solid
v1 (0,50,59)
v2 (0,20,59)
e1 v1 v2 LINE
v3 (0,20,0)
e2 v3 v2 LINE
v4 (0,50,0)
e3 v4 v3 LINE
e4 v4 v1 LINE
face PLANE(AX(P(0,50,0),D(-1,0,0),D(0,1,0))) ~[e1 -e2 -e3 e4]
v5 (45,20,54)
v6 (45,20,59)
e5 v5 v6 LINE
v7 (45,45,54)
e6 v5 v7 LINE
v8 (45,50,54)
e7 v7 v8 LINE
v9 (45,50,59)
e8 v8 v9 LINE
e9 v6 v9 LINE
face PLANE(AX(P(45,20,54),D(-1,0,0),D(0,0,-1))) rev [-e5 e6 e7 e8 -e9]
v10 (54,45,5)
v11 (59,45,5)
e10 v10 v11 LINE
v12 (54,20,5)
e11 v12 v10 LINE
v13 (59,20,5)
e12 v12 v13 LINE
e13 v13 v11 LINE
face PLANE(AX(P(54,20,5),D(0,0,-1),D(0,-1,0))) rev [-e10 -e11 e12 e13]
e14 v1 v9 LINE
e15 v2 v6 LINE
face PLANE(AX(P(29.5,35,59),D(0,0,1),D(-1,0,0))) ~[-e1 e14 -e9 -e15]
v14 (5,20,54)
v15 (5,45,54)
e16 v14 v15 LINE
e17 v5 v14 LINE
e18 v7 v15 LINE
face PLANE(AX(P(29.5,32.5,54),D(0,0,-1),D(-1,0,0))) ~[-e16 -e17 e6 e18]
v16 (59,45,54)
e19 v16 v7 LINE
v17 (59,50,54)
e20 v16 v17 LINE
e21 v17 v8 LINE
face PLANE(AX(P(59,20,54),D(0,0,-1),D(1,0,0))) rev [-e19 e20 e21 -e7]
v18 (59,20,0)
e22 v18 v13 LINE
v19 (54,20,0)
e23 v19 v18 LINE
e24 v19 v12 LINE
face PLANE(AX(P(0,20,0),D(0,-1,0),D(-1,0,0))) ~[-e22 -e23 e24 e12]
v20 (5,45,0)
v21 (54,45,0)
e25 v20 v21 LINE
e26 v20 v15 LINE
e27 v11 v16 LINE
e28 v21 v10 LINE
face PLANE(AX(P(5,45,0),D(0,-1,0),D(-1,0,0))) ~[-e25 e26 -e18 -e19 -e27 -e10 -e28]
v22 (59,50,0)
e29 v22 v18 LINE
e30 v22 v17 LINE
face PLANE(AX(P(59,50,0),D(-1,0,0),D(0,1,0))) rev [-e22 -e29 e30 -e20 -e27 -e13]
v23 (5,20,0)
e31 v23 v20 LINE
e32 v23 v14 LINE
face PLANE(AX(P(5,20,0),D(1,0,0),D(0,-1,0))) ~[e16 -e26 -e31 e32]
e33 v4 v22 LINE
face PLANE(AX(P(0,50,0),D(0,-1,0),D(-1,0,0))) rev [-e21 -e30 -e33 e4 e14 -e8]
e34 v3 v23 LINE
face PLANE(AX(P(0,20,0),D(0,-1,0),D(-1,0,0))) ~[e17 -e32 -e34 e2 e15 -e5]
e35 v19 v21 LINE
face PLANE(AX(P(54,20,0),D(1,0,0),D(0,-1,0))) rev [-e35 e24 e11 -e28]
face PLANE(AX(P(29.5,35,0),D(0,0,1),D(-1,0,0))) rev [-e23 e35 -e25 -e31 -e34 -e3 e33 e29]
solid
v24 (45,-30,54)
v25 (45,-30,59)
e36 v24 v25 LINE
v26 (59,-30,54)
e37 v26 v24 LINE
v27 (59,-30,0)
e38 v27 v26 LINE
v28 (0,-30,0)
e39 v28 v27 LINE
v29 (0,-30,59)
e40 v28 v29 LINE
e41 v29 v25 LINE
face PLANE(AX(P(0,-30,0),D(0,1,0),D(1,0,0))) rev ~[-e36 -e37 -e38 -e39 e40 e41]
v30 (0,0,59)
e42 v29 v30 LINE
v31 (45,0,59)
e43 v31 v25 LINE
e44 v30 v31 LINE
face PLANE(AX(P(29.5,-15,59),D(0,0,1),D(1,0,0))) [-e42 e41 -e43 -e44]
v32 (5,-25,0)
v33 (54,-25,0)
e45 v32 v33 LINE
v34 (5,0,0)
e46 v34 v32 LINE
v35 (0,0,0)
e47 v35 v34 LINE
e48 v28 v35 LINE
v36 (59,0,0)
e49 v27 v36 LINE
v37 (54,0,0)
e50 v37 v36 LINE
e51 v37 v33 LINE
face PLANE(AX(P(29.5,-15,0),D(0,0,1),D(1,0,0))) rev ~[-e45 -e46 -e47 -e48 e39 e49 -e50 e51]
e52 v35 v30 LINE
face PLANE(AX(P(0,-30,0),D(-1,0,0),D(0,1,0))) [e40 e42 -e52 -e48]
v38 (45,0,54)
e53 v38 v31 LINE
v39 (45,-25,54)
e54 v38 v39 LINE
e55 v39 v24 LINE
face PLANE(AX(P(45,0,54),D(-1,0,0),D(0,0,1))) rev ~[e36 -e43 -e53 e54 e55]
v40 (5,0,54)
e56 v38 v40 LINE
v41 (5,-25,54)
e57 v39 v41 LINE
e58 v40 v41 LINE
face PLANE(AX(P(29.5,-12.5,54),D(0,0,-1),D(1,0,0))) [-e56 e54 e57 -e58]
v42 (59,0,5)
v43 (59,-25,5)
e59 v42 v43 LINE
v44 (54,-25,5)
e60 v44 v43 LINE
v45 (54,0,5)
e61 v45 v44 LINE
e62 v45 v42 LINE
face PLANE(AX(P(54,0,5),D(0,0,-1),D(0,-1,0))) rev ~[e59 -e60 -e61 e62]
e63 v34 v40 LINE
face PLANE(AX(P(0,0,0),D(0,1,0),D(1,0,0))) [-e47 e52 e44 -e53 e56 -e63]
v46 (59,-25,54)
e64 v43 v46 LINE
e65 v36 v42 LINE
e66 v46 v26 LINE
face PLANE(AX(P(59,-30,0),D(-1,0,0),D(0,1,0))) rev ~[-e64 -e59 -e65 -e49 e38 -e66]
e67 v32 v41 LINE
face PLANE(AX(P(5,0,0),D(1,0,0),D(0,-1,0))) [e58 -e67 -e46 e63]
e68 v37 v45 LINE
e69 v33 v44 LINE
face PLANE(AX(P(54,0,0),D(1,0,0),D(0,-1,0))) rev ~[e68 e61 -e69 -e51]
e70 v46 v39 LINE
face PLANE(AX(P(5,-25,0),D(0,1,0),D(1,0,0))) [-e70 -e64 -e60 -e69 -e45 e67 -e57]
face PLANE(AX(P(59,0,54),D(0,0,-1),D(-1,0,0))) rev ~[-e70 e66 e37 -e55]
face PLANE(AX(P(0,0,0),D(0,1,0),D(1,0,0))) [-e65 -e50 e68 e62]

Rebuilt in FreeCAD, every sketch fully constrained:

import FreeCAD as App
import Part
import Sketcher
from FreeCAD import Vector
Q = App.Units.Quantity


def add_polygon(sketch, points):
    """Adds a closed chain of lines whose ends are joined by coincident constraints."""
    first, n = sketch.GeometryCount, len(points)
    for a, b in zip(points, points[1:] + points[:1]):
        sketch.addGeometry(Part.LineSegment(App.Vector(*a, 0), App.Vector(*b, 0)), False)
    for i in range(n):
        sketch.addConstraint(Sketcher.Constraint("Coincident", first + i, 2, first + (i + 1) % n, 1))

doc = App.newDocument("Part")
body = doc.addObject("PartDesign::Body", "Body")

sketch1 = doc.addObject("Sketcher::SketchObject", "Sketch")
body.addObject(sketch1)
sketch1.AttachmentSupport = (doc.XY_Plane, [""])
sketch1.MapMode = "FlatFace"
add_polygon(sketch1, [(0, 0), (0, -30), (59, -30), (59, 0)])
sketch1.addConstraint(Sketcher.Constraint("Vertical", 0))
sketch1.addConstraint(Sketcher.Constraint("Horizontal", 1))
sketch1.addConstraint(Sketcher.Constraint("Vertical", 2))
sketch1.addConstraint(Sketcher.Constraint("Horizontal", 3))
sketch1.addConstraint(Sketcher.Constraint("Coincident", 3, 2, -1, 1))
sketch1.addConstraint(Sketcher.Constraint("DistanceX", 1, 1, 1, 2, Q("59 mm")))
sketch1.addConstraint(Sketcher.Constraint("DistanceY", 0, 2, 0, 1, Q("30 mm")))
pad1 = doc.addObject("PartDesign::Pad", "Pad")
body.addObject(pad1)
pad1.Profile = sketch1
pad1.Length = 59

sketch2 = doc.addObject("Sketcher::SketchObject", "Sketch001")
body.addObject(sketch2)
sketch2.AttachmentSupport = (doc.XY_Plane, [""])
sketch2.MapMode = "FlatFace"
add_polygon(sketch2, [(5, -25), (5, 0), (54, 0), (54, -25)])
sketch2.addConstraint(Sketcher.Constraint("Vertical", 0))
sketch2.addConstraint(Sketcher.Constraint("Horizontal", 1))
sketch2.addConstraint(Sketcher.Constraint("Vertical", 2))
sketch2.addConstraint(Sketcher.Constraint("Horizontal", 3))
sketch2.addConstraint(Sketcher.Constraint("PointOnObject", 0, 2, -1))
sketch2.addConstraint(Sketcher.Constraint("DistanceX", 1, 1, 1, 2, Q("49 mm")))
sketch2.addConstraint(Sketcher.Constraint("DistanceY", 0, 1, 0, 2, Q("25 mm")))
sketch2.addConstraint(Sketcher.Constraint("DistanceX", -1, 1, 0, 2, Q("5 mm")))
pocket1 = doc.addObject("PartDesign::Pocket", "Pocket")
body.addObject(pocket1)
pocket1.Profile = sketch2
pocket1.Length = 54
pocket1.Reversed = True

sketch3 = doc.addObject("Sketcher::SketchObject", "Sketch002")
body.addObject(sketch3)
sketch3.AttachmentSupport = (doc.YZ_Plane, [""])
sketch3.MapMode = "FlatFace"
sketch3.AttachmentOffset = App.Placement(Vector(0, 0, 54), App.Rotation())
add_polygon(sketch3, [(0, 54), (0, 5), (-25, 5), (-25, 54)])
sketch3.addConstraint(Sketcher.Constraint("Vertical", 0))
sketch3.addConstraint(Sketcher.Constraint("Horizontal", 1))
sketch3.addConstraint(Sketcher.Constraint("Vertical", 2))
sketch3.addConstraint(Sketcher.Constraint("Horizontal", 3))
sketch3.addConstraint(Sketcher.Constraint("PointOnObject", 0, 2, -2))
sketch3.addConstraint(Sketcher.Constraint("DistanceX", 1, 2, 1, 1, Q("25 mm")))
sketch3.addConstraint(Sketcher.Constraint("DistanceY", 0, 2, 0, 1, Q("49 mm")))
sketch3.addConstraint(Sketcher.Constraint("DistanceY", -1, 1, 0, 2, Q("5 mm")))
pocket2 = doc.addObject("PartDesign::Pocket", "Pocket001")
body.addObject(pocket2)
pocket2.Profile = sketch3
pocket2.Length = 5
pocket2.Reversed = True

sketch4 = doc.addObject("Sketcher::SketchObject", "Sketch003")
body.addObject(sketch4)
sketch4.AttachmentSupport = (doc.XZ_Plane, [""])
sketch4.MapMode = "FlatFace"
add_polygon(sketch4, [(59, 59), (59, 54), (45, 54), (45, 59)])
sketch4.addConstraint(Sketcher.Constraint("Vertical", 0))
sketch4.addConstraint(Sketcher.Constraint("Horizontal", 1))
sketch4.addConstraint(Sketcher.Constraint("Vertical", 2))
sketch4.addConstraint(Sketcher.Constraint("Horizontal", 3))
sketch4.addConstraint(Sketcher.Constraint("DistanceX", 1, 2, 1, 1, Q("14 mm")))
sketch4.addConstraint(Sketcher.Constraint("DistanceY", 0, 2, 0, 1, Q("5 mm")))
sketch4.addConstraint(Sketcher.Constraint("DistanceX", -1, 1, 0, 2, Q("59 mm")))
sketch4.addConstraint(Sketcher.Constraint("DistanceY", -1, 1, 0, 2, Q("54 mm")))
pocket3 = doc.addObject("PartDesign::Pocket", "Pocket002")
body.addObject(pocket3)
pocket3.Profile = sketch4
pocket3.Length = 30
pocket3.Reversed = True
body2 = doc.addObject("PartDesign::Body", "Body001")
doc.recompute()

mirroring = doc.addObject("Part::Mirroring", "Mirroring")
mirroring.Source = body
mirroring.Base = Vector(0, 10, 0)
mirroring.Normal = Vector(0, -1, 0)
body2.BaseFeature = mirroring
doc.recompute()
mirroring.Visibility = False

doc.recompute()
